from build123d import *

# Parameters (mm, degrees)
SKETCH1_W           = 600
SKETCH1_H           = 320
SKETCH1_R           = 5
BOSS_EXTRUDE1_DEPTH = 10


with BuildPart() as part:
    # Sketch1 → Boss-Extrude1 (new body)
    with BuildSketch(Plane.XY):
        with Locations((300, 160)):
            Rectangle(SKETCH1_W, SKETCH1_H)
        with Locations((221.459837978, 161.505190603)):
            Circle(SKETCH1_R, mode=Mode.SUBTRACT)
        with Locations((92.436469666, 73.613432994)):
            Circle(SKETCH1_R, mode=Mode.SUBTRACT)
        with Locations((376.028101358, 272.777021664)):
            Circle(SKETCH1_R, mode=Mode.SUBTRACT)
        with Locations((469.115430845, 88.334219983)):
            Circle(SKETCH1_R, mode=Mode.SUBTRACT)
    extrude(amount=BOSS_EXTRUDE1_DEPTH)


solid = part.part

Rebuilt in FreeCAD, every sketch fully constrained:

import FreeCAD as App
import Part
import Sketcher
Q = App.Units.Quantity

doc = App.newDocument("Part")
params = doc.addObject("Spreadsheet::Sheet", "Params")
for row, (alias, value) in enumerate([
    ("sketch1_diameter", "10 mm"),
    ("sketch1_width", "600 mm"),
    ("sketch1_height", "320 mm"),
    ("pad1_length", "10 mm"),
], start=1):
    params.set(f"A{row}", alias)
    params.set(f"B{row}", "=" + value)
    params.setAlias(f"B{row}", alias)

body = doc.addObject("PartDesign::Body", "Body")

sketch1 = body.newObject("Sketcher::SketchObject", "Sketch")
sketch1.AttachmentSupport = (doc.getObject("XY_Plane"), [""])
sketch1.MapMode = "FlatFace"
sketch1.addGeometry([
    Part.LineSegment(App.Vector(0, 320, 0), App.Vector(0, 0, 0)),
    Part.LineSegment(App.Vector(0, 0, 0), App.Vector(600, 0, 0)),
    Part.LineSegment(App.Vector(600, 0, 0), App.Vector(600, 320, 0)),
    Part.LineSegment(App.Vector(600, 320, 0), App.Vector(0, 320, 0)),
    Part.Circle(App.Vector(92.43647, 73.613433, 0), App.Vector(0, 0, 1), 5),
    Part.Circle(App.Vector(221.459838, 161.505191, 0), App.Vector(0, 0, 1), 5),
    Part.Circle(App.Vector(469.115431, 88.33422, 0), App.Vector(0, 0, 1), 5),
    Part.Circle(App.Vector(376.028101, 272.777022, 0), App.Vector(0, 0, 1), 5),
], False)
sketch1.addConstraint([
    Sketcher.Constraint("Coincident", 0, 2, 1, 1),
    Sketcher.Constraint("Coincident", 1, 2, 2, 1),
    Sketcher.Constraint("Coincident", 2, 2, 3, 1),
    Sketcher.Constraint("Coincident", 3, 2, 0, 1),
    Sketcher.Constraint("Vertical", 0),
    Sketcher.Constraint("Horizontal", 1),
    Sketcher.Constraint("Vertical", 2),
    Sketcher.Constraint("Horizontal", 3),
    Sketcher.Constraint("Coincident", 0, 2, -1, 1),
    Sketcher.Constraint("Equal", 4, 5),
    Sketcher.Constraint("Equal", 5, 6),
    Sketcher.Constraint("Equal", 6, 7),
    Sketcher.Constraint("Diameter", 4, Q("10 mm")),
    Sketcher.Constraint("DistanceX", 1, 1, 1, 2, Q("600 mm")),
    Sketcher.Constraint("DistanceY", 0, 2, 0, 1, Q("320 mm")),
    Sketcher.Constraint("DistanceX", -1, 1, 7, 3, Q("376.028101 mm")),
    Sketcher.Constraint("DistanceY", 6, 3, 7, 3, Q("184.442802 mm")),
    Sketcher.Constraint("DistanceX", -1, 1, 4, 3, Q("92.43647 mm")),
    Sketcher.Constraint("DistanceY", -1, 1, 5, 3, Q("161.505191 mm")),
    Sketcher.Constraint("DistanceX", -1, 1, 6, 3, Q("469.115431 mm")),
    Sketcher.Constraint("DistanceY", -1, 1, 6, 3, Q("88.33422 mm")),
    Sketcher.Constraint("DistanceX", 4, 3, 5, 3, Q("129.023368 mm")),
    Sketcher.Constraint("DistanceY", 4, 3, 7, 3, Q("199.163589 mm")),
])
sketch1.setExpression("Constraints[12]", "Params.sketch1_diameter")
sketch1.setExpression("Constraints[13]", "Params.sketch1_width")
sketch1.setExpression("Constraints[14]", "Params.sketch1_height")
pad1 = body.newObject("PartDesign::Pad", "Pad")
pad1.Profile = sketch1
pad1.setExpression("Length", "Params.pad1_length")

doc.recompute()
